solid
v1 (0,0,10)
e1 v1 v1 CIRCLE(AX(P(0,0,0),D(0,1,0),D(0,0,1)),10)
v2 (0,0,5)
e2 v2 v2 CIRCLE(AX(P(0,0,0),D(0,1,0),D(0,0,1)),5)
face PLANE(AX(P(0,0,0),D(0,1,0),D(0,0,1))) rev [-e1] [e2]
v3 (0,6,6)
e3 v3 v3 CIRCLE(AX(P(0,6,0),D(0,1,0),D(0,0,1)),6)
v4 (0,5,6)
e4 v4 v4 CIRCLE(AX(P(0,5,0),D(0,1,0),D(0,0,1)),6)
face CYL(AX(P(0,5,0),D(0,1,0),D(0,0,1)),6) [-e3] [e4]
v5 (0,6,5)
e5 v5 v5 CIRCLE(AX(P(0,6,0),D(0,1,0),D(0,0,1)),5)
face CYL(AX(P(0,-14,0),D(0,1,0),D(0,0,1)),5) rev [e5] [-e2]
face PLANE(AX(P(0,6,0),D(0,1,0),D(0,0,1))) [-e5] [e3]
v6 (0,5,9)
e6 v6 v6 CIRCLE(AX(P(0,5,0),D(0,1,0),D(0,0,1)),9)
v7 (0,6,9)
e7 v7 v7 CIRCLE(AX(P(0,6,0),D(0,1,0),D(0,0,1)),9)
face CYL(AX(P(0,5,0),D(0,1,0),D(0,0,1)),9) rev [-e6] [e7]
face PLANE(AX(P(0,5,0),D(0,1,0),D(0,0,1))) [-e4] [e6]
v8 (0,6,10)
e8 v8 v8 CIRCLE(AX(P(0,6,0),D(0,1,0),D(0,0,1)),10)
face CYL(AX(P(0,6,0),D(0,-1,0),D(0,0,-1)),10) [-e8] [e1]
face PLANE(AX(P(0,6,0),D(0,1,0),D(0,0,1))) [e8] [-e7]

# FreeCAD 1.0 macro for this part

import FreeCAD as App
import Part
import Sketcher

V = App.Vector

doc = App.newDocument("Part")
body = doc.addObject("PartDesign::Body", "Body")

sketch1 = doc.addObject("Sketcher::SketchObject", "Sketch")
body.addObject(sketch1)
sketch1.AttachmentSupport = (doc.XZ_Plane, [""])
sketch1.MapMode = "FlatFace"
sketch1.addGeometry(Part.Circle(V(0, 0, 0), V(0, 0, 1), 10), False)
sketch1.addConstraint([
    Sketcher.Constraint("Coincident", 0, 3, -1, 1),
    Sketcher.Constraint("Diameter", 0, 20.0),
])
pad1 = doc.addObject("PartDesign::Pad", "Pad")
body.addObject(pad1)
pad1.Profile = sketch1
pad1.Length = 6
pad1.Reversed = True

sketch2 = doc.addObject("Sketcher::SketchObject", "Sketch001")
body.addObject(sketch2)
sketch2.AttachmentSupport = (doc.XZ_Plane, [""])
sketch2.MapMode = "FlatFace"
sketch2.AttachmentOffset = App.Placement(V(0, 0, -6), App.Rotation())
sketch2.addGeometry(Part.Circle(V(0, 0, 0), V(0, 0, 1), 5), False)
sketch2.addConstraint([
    Sketcher.Constraint("Coincident", 0, 3, -1, 1),
    Sketcher.Constraint("Diameter", 0, 10.0),
])
pocket1 = doc.addObject("PartDesign::Pocket", "Pocket")
body.addObject(pocket1)
pocket1.Profile = sketch2
pocket1.Length = 20
pocket1.Reversed = True

sketch3 = doc.addObject("Sketcher::SketchObject", "Sketch002")
body.addObject(sketch3)
sketch3.AttachmentSupport = (doc.XZ_Plane, [""])
sketch3.MapMode = "FlatFace"
sketch3.AttachmentOffset = App.Placement(V(0, 0, -6), App.Rotation())
sketch3.addGeometry([
    Part.Circle(V(0, 0, 0), V(0, 0, 1), 9),
    Part.Circle(V(0, 0, 0), V(0, 0, 1), 6),
], False)
sketch3.addConstraint([
    Sketcher.Constraint("Coincident", 0, 3, -1, 1),
    Sketcher.Constraint("Coincident", 1, 3, -1, 1),
    Sketcher.Constraint("Diameter", 0, 18.0),
    Sketcher.Constraint("Diameter", 1, 12.0),
])
pocket2 = doc.addObject("PartDesign::Pocket", "Pocket001")
body.addObject(pocket2)
pocket2.Profile = sketch3
pocket2.Length = 1
pocket2.Reversed = True

doc.recompute()
